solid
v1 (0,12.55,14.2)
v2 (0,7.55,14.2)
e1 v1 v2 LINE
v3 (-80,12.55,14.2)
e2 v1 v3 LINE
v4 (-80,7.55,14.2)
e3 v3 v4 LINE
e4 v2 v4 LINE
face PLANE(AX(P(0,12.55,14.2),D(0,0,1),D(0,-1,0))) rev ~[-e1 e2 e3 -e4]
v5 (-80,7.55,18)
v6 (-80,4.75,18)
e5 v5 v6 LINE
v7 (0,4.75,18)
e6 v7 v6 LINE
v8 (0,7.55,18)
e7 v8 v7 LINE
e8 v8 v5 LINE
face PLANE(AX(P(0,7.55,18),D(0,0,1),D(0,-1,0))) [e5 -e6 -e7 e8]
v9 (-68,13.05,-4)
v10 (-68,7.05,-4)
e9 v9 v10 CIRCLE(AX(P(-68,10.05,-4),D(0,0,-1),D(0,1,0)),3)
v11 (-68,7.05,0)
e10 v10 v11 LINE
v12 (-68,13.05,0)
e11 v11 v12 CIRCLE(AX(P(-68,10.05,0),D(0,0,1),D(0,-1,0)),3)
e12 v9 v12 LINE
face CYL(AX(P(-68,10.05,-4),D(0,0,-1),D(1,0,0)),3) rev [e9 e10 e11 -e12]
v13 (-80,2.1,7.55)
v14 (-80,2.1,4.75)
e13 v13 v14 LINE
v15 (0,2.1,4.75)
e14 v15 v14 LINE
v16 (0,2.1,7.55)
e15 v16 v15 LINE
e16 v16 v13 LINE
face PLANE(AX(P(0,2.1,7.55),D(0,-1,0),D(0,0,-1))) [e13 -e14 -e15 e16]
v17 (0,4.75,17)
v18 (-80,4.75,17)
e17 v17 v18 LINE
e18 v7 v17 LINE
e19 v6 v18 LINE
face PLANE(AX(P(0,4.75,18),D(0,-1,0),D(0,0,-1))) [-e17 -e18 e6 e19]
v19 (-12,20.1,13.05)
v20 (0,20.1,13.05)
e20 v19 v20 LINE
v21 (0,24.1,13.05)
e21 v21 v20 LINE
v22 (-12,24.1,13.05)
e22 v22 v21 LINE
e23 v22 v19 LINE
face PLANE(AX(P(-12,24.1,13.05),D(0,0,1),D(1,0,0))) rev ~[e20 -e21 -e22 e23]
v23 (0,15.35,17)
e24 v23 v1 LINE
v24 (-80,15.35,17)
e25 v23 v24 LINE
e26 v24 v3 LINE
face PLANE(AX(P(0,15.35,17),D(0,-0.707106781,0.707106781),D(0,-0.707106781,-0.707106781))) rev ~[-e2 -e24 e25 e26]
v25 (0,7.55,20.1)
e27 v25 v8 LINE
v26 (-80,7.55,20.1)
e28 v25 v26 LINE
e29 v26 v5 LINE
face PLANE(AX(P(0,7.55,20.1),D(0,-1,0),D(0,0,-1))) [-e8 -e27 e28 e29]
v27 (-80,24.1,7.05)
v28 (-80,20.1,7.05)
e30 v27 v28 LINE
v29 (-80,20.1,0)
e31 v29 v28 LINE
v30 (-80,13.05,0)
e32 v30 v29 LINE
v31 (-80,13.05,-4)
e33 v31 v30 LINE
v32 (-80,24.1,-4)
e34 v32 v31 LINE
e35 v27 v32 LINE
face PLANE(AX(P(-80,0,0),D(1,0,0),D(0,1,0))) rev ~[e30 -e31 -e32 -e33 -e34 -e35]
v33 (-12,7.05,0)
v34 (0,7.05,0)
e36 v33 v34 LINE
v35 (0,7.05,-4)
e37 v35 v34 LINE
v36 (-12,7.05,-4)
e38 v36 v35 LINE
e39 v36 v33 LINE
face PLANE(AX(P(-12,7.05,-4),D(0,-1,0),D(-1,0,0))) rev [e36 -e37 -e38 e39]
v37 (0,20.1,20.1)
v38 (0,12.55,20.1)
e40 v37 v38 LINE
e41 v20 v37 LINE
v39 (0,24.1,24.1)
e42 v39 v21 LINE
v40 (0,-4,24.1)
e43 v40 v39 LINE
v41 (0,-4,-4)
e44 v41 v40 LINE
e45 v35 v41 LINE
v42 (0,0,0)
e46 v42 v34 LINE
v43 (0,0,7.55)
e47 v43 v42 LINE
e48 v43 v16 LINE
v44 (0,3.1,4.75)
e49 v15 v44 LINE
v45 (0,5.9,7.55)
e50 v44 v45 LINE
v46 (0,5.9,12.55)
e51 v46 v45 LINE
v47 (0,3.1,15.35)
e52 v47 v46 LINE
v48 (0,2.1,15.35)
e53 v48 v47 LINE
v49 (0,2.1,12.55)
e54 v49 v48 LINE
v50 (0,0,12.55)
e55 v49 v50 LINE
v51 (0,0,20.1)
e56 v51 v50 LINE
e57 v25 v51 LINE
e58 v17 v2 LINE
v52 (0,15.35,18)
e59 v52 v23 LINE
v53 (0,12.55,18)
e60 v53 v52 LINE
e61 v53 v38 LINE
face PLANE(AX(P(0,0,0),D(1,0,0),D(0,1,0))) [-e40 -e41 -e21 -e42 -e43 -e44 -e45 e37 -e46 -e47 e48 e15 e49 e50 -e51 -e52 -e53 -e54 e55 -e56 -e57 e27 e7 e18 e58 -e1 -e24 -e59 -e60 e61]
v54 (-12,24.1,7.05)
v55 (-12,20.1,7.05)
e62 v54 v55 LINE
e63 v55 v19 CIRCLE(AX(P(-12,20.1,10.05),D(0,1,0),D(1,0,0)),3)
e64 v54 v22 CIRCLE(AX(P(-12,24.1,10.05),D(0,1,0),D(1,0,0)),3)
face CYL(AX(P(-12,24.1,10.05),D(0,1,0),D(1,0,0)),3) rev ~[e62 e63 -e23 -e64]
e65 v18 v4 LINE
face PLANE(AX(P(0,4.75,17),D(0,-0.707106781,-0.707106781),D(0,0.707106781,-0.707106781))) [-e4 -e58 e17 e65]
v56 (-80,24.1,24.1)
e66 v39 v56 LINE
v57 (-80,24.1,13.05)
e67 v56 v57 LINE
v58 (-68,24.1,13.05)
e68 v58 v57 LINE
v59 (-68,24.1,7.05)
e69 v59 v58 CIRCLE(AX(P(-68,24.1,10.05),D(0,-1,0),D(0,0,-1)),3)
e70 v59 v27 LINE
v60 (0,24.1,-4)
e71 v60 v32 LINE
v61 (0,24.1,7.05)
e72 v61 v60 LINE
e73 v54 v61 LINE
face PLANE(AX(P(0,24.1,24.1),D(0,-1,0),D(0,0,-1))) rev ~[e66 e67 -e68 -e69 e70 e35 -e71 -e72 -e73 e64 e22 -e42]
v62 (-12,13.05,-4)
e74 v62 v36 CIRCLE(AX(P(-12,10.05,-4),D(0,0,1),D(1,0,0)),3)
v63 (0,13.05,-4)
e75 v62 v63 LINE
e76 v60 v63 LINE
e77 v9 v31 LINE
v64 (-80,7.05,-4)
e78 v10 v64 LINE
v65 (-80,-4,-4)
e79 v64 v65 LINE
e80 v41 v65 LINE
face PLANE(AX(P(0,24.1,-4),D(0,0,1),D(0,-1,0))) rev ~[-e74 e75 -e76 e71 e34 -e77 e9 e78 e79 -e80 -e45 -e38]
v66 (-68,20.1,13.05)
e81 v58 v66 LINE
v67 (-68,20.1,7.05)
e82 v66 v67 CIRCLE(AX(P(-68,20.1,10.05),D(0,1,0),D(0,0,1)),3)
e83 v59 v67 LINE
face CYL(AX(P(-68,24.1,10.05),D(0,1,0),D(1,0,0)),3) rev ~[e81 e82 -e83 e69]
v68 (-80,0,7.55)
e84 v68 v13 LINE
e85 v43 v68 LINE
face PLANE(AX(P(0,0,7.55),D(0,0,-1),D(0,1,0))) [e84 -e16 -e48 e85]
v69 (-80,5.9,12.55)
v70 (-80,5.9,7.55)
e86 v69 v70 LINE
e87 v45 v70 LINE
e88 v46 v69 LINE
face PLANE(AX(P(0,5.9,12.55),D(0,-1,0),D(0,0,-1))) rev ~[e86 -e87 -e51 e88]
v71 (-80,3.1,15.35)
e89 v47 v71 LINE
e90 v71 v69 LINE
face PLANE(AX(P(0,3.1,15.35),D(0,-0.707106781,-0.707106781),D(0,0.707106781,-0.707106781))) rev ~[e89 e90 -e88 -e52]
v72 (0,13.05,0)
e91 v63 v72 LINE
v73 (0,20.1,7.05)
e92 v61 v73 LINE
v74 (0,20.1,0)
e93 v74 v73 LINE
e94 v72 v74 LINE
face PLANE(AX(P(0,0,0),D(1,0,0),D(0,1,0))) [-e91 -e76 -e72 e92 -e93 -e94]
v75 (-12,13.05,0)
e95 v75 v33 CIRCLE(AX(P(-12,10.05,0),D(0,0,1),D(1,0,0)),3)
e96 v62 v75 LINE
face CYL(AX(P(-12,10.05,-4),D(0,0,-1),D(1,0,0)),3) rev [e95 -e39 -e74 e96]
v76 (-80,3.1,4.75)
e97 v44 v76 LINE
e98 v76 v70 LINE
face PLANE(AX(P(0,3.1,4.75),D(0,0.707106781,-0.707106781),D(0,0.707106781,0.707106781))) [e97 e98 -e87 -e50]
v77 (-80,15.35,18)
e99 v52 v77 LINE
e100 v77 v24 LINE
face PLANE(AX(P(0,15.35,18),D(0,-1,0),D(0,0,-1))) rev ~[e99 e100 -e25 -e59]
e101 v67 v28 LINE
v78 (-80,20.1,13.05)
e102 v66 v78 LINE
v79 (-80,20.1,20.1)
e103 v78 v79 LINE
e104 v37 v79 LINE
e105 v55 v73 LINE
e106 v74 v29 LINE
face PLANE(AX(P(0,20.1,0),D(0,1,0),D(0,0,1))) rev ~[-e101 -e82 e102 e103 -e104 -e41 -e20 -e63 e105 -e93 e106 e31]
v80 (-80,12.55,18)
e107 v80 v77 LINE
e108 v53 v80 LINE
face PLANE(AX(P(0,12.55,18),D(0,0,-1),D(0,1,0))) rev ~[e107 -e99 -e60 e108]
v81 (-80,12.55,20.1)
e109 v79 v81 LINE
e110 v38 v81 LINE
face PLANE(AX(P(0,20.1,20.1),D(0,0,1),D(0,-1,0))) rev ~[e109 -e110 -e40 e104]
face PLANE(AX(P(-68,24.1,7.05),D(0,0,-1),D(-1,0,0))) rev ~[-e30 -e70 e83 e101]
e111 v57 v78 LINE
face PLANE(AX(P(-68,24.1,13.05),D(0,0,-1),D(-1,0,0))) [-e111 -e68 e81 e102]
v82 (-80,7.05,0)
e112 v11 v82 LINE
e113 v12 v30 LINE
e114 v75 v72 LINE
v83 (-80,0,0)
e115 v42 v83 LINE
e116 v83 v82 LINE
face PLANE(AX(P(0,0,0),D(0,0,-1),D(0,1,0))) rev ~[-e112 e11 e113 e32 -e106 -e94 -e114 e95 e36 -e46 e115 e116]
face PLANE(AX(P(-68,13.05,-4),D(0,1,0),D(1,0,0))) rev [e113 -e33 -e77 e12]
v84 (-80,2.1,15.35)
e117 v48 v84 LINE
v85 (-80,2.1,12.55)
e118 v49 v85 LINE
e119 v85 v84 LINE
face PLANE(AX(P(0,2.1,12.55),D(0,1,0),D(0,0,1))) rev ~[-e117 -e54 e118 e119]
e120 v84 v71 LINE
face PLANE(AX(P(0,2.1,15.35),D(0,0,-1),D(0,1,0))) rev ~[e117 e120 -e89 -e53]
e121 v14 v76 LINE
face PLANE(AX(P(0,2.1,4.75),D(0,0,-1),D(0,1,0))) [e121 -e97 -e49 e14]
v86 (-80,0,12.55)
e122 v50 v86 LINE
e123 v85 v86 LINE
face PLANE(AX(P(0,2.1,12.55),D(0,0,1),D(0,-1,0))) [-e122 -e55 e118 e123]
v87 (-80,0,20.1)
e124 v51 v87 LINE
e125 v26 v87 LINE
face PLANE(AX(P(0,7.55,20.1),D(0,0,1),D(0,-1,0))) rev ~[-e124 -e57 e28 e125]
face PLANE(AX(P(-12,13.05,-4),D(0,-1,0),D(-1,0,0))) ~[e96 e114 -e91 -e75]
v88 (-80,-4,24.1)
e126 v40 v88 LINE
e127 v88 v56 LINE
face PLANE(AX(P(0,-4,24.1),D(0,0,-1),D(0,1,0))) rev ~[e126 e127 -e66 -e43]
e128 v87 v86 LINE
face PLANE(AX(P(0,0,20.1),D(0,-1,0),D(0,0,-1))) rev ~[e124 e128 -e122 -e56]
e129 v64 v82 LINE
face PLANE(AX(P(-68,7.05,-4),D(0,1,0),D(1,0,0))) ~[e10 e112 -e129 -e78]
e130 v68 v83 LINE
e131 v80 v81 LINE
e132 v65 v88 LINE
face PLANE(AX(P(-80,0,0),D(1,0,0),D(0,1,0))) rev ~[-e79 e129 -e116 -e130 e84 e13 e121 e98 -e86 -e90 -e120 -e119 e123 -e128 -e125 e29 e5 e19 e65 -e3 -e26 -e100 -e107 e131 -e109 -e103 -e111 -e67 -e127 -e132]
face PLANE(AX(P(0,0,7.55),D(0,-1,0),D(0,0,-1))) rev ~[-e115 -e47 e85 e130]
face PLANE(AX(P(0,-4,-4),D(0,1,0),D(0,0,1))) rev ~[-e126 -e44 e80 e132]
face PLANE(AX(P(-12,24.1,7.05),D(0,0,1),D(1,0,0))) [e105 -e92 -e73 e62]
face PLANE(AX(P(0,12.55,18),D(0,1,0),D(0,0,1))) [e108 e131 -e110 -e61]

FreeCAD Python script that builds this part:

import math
import FreeCAD as App
import Part
import Sketcher
from FreeCAD import Vector

doc = App.newDocument("Part")
body = doc.addObject("PartDesign::Body", "Body")

# Sketch on YZ plane
sketch1 = body.newObject("Sketcher::SketchObject", "Sketch")
sketch1.AttachmentSupport = (doc.getObject("YZ_Plane"), [""])
sketch1.MapMode = "FlatFace"
sketch1.addGeometry(Part.LineSegment(Vector(24.1, 24.1, 0), Vector(-4, 24.1, 0)), False)
sketch1.addGeometry(Part.LineSegment(Vector(-4, 24.1, 0), Vector(-4, -4, 0)), False)
sketch1.addGeometry(Part.LineSegment(Vector(-4, -4, 0), Vector(24.1, -4, 0)), False)
sketch1.addGeometry(Part.LineSegment(Vector(24.1, -4, 0), Vector(24.1, 24.1, 0)), False)
sketch1.addGeometry(Part.LineSegment(Vector(20.1, 0, 0), Vector(0, 0, 0)), False)
sketch1.addGeometry(Part.LineSegment(Vector(0, 0, 0), Vector(0, 7.55, 0)), False)
sketch1.addGeometry(Part.LineSegment(Vector(0, 7.55, 0), Vector(2.1, 7.55, 0)), False)
sketch1.addGeometry(Part.LineSegment(Vector(2.1, 7.55, 0), Vector(2.1, 4.75, 0)), False)
sketch1.addGeometry(Part.LineSegment(Vector(2.1, 4.75, 0), Vector(3.1, 4.75, 0)), False)
sketch1.addGeometry(Part.LineSegment(Vector(3.1, 4.75, 0), Vector(5.9, 7.55, 0)), False)
sketch1.addGeometry(Part.LineSegment(Vector(5.9, 7.55, 0), Vector(5.9, 12.55, 0)), False)
sketch1.addGeometry(Part.LineSegment(Vector(5.9, 12.55, 0), Vector(3.1, 15.35, 0)), False)
sketch1.addGeometry(Part.LineSegment(Vector(3.1, 15.35, 0), Vector(2.1, 15.35, 0)), False)
sketch1.addGeometry(Part.LineSegment(Vector(2.1, 15.35, 0), Vector(2.1, 12.55, 0)), False)
sketch1.addGeometry(Part.LineSegment(Vector(2.1, 12.55, 0), Vector(0, 12.55, 0)), False)
sketch1.addGeometry(Part.LineSegment(Vector(0, 12.55, 0), Vector(0, 20.1, 0)), False)
sketch1.addGeometry(Part.LineSegment(Vector(0, 20.1, 0), Vector(7.55, 20.1, 0)), False)
sketch1.addGeometry(Part.LineSegment(Vector(7.55, 20.1, 0), Vector(7.55, 18, 0)), False)
sketch1.addGeometry(Part.LineSegment(Vector(7.55, 18, 0), Vector(4.75, 18, 0)), False)
sketch1.addGeometry(Part.LineSegment(Vector(4.75, 18, 0), Vector(4.75, 17, 0)), False)
sketch1.addGeometry(Part.LineSegment(Vector(4.75, 17, 0), Vector(7.55, 14.2, 0)), False)
sketch1.addGeometry(Part.LineSegment(Vector(7.55, 14.2, 0), Vector(12.55, 14.2, 0)), False)
sketch1.addGeometry(Part.LineSegment(Vector(12.55, 14.2, 0), Vector(15.35, 17, 0)), False)
sketch1.addGeometry(Part.LineSegment(Vector(15.35, 17, 0), Vector(15.35, 18, 0)), False)
sketch1.addGeometry(Part.LineSegment(Vector(15.35, 18, 0), Vector(12.55, 18, 0)), False)
sketch1.addGeometry(Part.LineSegment(Vector(12.55, 18, 0), Vector(12.55, 20.1, 0)), False)
sketch1.addGeometry(Part.LineSegment(Vector(12.55, 20.1, 0), Vector(20.1, 20.1, 0)), False)
sketch1.addGeometry(Part.LineSegment(Vector(20.1, 20.1, 0), Vector(20.1, 0, 0)), False)
sketch1.addConstraint(Sketcher.Constraint("Coincident", 0, 2, 1, 1))
sketch1.addConstraint(Sketcher.Constraint("Coincident", 1, 2, 2, 1))
sketch1.addConstraint(Sketcher.Constraint("Coincident", 2, 2, 3, 1))
sketch1.addConstraint(Sketcher.Constraint("Coincident", 3, 2, 0, 1))
sketch1.addConstraint(Sketcher.Constraint("Coincident", 4, 2, 5, 1))
sketch1.addConstraint(Sketcher.Constraint("Coincident", 5, 2, 6, 1))
sketch1.addConstraint(Sketcher.Constraint("Coincident", 6, 2, 7, 1))
sketch1.addConstraint(Sketcher.Constraint("Coincident", 7, 2, 8, 1))
sketch1.addConstraint(Sketcher.Constraint("Coincident", 8, 2, 9, 1))
sketch1.addConstraint(Sketcher.Constraint("Coincident", 9, 2, 10, 1))
sketch1.addConstraint(Sketcher.Constraint("Coincident", 10, 2, 11, 1))
sketch1.addConstraint(Sketcher.Constraint("Coincident", 11, 2, 12, 1))
sketch1.addConstraint(Sketcher.Constraint("Coincident", 12, 2, 13, 1))
sketch1.addConstraint(Sketcher.Constraint("Coincident", 13, 2, 14, 1))
sketch1.addConstraint(Sketcher.Constraint("Coincident", 14, 2, 15, 1))
sketch1.addConstraint(Sketcher.Constraint("Coincident", 15, 2, 16, 1))
sketch1.addConstraint(Sketcher.Constraint("Coincident", 16, 2, 17, 1))
sketch1.addConstraint(Sketcher.Constraint("Coincident", 17, 2, 18, 1))
sketch1.addConstraint(Sketcher.Constraint("Coincident", 18, 2, 19, 1))
sketch1.addConstraint(Sketcher.Constraint("Coincident", 19, 2, 20, 1))
sketch1.addConstraint(Sketcher.Constraint("Coincident", 20, 2, 21, 1))
sketch1.addConstraint(Sketcher.Constraint("Coincident", 21, 2, 22, 1))
sketch1.addConstraint(Sketcher.Constraint("Coincident", 22, 2, 23, 1))
sketch1.addConstraint(Sketcher.Constraint("Coincident", 23, 2, 24, 1))
sketch1.addConstraint(Sketcher.Constraint("Coincident", 24, 2, 25, 1))
sketch1.addConstraint(Sketcher.Constraint("Coincident", 25, 2, 26, 1))
sketch1.addConstraint(Sketcher.Constraint("Coincident", 26, 2, 27, 1))
sketch1.addConstraint(Sketcher.Constraint("Coincident", 27, 2, 4, 1))
sketch1.addConstraint(Sketcher.Constraint("Horizontal", 0))
sketch1.addConstraint(Sketcher.Constraint("Vertical", 1))
sketch1.addConstraint(Sketcher.Constraint("Horizontal", 2))
sketch1.addConstraint(Sketcher.Constraint("Vertical", 3))
sketch1.addConstraint(Sketcher.Constraint("Horizontal", 4))
sketch1.addConstraint(Sketcher.Constraint("Vertical", 5))
sketch1.addConstraint(Sketcher.Constraint("Horizontal", 6))
sketch1.addConstraint(Sketcher.Constraint("Vertical", 7))
sketch1.addConstraint(Sketcher.Constraint("Horizontal", 8))
sketch1.addConstraint(Sketcher.Constraint("Vertical", 10))
sketch1.addConstraint(Sketcher.Constraint("Horizontal", 12))
sketch1.addConstraint(Sketcher.Constraint("Vertical", 13))
sketch1.addConstraint(Sketcher.Constraint("Horizontal", 14))
sketch1.addConstraint(Sketcher.Constraint("Vertical", 15))
sketch1.addConstraint(Sketcher.Constraint("Horizontal", 16))
sketch1.addConstraint(Sketcher.Constraint("Vertical", 17))
sketch1.addConstraint(Sketcher.Constraint("Horizontal", 18))
sketch1.addConstraint(Sketcher.Constraint("Vertical", 19))
sketch1.addConstraint(Sketcher.Constraint("Horizontal", 21))
sketch1.addConstraint(Sketcher.Constraint("Vertical", 23))
sketch1.addConstraint(Sketcher.Constraint("Horizontal", 24))
sketch1.addConstraint(Sketcher.Constraint("Vertical", 25))
sketch1.addConstraint(Sketcher.Constraint("Horizontal", 26))
sketch1.addConstraint(Sketcher.Constraint("Vertical", 27))
sketch1.addConstraint(Sketcher.Constraint("Coincident", 4, 2, -1, 1))
sketch1.addConstraint(Sketcher.Constraint("PointOnObject", 14, 2, -2))
sketch1.addConstraint(Sketcher.Constraint("Perpendicular", 9, 11))
sketch1.addConstraint(Sketcher.Constraint("Parallel", 11, 20))
sketch1.addConstraint(Sketcher.Constraint("Perpendicular", 20, 22))
sketch1.addConstraint(Sketcher.Constraint("Horizontal", 6, 2, 9, 2))
sketch1.addConstraint(Sketcher.Constraint("Horizontal", 10, 2, 13, 2))
sketch1.addConstraint(Sketcher.Constraint("Horizontal", 19, 2, 22, 2))
sketch1.addConstraint(Sketcher.Constraint("Horizontal", 18, 2, 23, 2))
sketch1.addConstraint(Sketcher.Constraint("Horizontal", 16, 2, 25, 2))
sketch1.addConstraint(Sketcher.Constraint("Vertical", 8, 2, 11, 2))
sketch1.addConstraint(Sketcher.Constraint("Vertical", 7, 2, 12, 2))
sketch1.addConstraint(Sketcher.Constraint("Vertical", 17, 2, 20, 2))
sketch1.addConstraint(Sketcher.Constraint("Vertical", 21, 2, 24, 2))
sketch1.addConstraint(Sketcher.Constraint("Equal", 18, 24))
sketch1.addConstraint(Sketcher.Constraint("Equal", 16, 26))
sketch1.addConstraint(Sketcher.Constraint("Equal", 2, 1))
sketch1.addConstraint(Sketcher.Constraint("Equal", 26, 5))
sketch1.addConstraint(Sketcher.Constraint("Equal", 24, 7))
sketch1.addConstraint(Sketcher.Constraint("Equal", 21, 10))
sketch1.addConstraint(Sketcher.Constraint("Equal", 5, 15))
sketch1.addConstraint(Sketcher.Constraint("Equal", 14, 17))
sketch1.addConstraint(Sketcher.Constraint("Equal", 12, 19))
sketch1.addConstraint(Sketcher.Constraint("DistanceX", 8, 1, 8, 2, 1.0))
sketch1.addConstraint(Sketcher.Constraint("DistanceX", 21, 1, 21, 2, 5.0))
sketch1.addConstraint(Sketcher.Constraint("DistanceX", 4, 2, 4, 1, 20.1))
sketch1.addConstraint(Sketcher.Constraint("DistanceX", 6, 1, 6, 2, 2.1))
sketch1.addConstraint(Sketcher.Constraint("DistanceX", 18, 2, 18, 1, 2.8))
sketch1.addConstraint(Sketcher.Constraint("DistanceX", 0, 2, -1, 1, 4.0))
sketch1.addConstraint(Sketcher.Constraint("DistanceY", 1, 2, -1, 1, 4.0))
sketch1.addConstraint(Sketcher.Constraint("DistanceY", 15, 2, 0, 2, 4.0))
pad1 = body.newObject("PartDesign::Pad", "Pad")
pad1.Profile = sketch1
pad1.Length = 80
pad1.Reversed = True

# Sketch on XZ plane
sketch2 = body.newObject("Sketcher::SketchObject", "Sketch001")
sketch2.AttachmentSupport = (doc.getObject("XZ_Plane"), [""])
sketch2.MapMode = "FlatFace"
sketch2.AttachmentOffset = App.Placement(Vector(0, 0, -24.1), App.Rotation())
sketch2.addGeometry(Part.LineSegment(Vector(0, 7.05, 0), Vector(-12, 7.05, 0)), False)
sketch2.addGeometry(Part.ArcOfCircle(Part.Circle(Vector(-12, 10.05, 0), Vector(0, 0, 1), 3), math.radians(90), math.radians(270)), False)
sketch2.addGeometry(Part.LineSegment(Vector(-12, 13.05, 0), Vector(0, 13.05, 0)), False)
sketch2.addGeometry(Part.LineSegment(Vector(0, 13.05, 0), Vector(0, 7.05, 0)), False)
sketch2.addGeometry(Part.LineSegment(Vector(-68, 7.05, 0), Vector(-80, 7.05, 0)), False)
sketch2.addGeometry(Part.LineSegment(Vector(-80, 7.05, 0), Vector(-80, 13.05, 0)), False)
sketch2.addGeometry(Part.LineSegment(Vector(-80, 13.05, 0), Vector(-68, 13.05, 0)), False)
sketch2.addGeometry(Part.ArcOfCircle(Part.Circle(Vector(-68, 10.05, 0), Vector(0, 0, 1), 3), math.radians(-90), math.radians(90)), False)
sketch2.addConstraint(Sketcher.Constraint("Tangent", 0, 2, 1, 2))
sketch2.addConstraint(Sketcher.Constraint("Tangent", 1, 1, 2, 1))
sketch2.addConstraint(Sketcher.Constraint("Coincident", 2, 2, 3, 1))
sketch2.addConstraint(Sketcher.Constraint("Coincident", 3, 2, 0, 1))
sketch2.addConstraint(Sketcher.Constraint("Coincident", 4, 2, 5, 1))
sketch2.addConstraint(Sketcher.Constraint("Coincident", 5, 2, 6, 1))
sketch2.addConstraint(Sketcher.Constraint("Tangent", 6, 2, 7, 2))
sketch2.addConstraint(Sketcher.Constraint("Tangent", 7, 1, 4, 1))
sketch2.addConstraint(Sketcher.Constraint("Horizontal", 0))
sketch2.addConstraint(Sketcher.Constraint("Horizontal", 2))
sketch2.addConstraint(Sketcher.Constraint("Vertical", 3))
sketch2.addConstraint(Sketcher.Constraint("Horizontal", 4))
sketch2.addConstraint(Sketcher.Constraint("Vertical", 5))
sketch2.addConstraint(Sketcher.Constraint("Horizontal", 6))
sketch2.addConstraint(Sketcher.Constraint("Equal", 1, 7))
sketch2.addConstraint(Sketcher.Constraint("PointOnObject", 2, 2, -2))
sketch2.addConstraint(Sketcher.Constraint("Horizontal", 1, 3, 7, 3))
sketch2.addConstraint(Sketcher.Constraint("Equal", 2, 4))
sketch2.addConstraint(Sketcher.Constraint("Radius", 1, 3.0))
sketch2.addConstraint(Sketcher.Constraint("DistanceX", 0, 2, 0, 1, 12.0))
sketch2.addConstraint(Sketcher.Constraint("DistanceX", 7, 3, -1, 1, 68.0))
sketch2.addConstraint(Sketcher.Constraint("DistanceY", -1, 1, 1, 3, 10.05))
pocket1 = body.newObject("PartDesign::Pocket", "Pocket")
pocket1.Profile = sketch2
pocket1.Length = 4
pocket1.Reversed = True
doc.recompute()

datumplane = body.newObject("PartDesign::Plane", "DatumPlane")
datumplane.Placement = App.Placement(Vector(0, 10.05, 10.05), App.Rotation(Vector(0, -0.707106781, 0.707106781), Vector(-1, 0, 0), Vector(0, -0.707106781, -0.707106781), "ZXY"))
mirrored = body.newObject("PartDesign::Mirrored", "Mirrored")
mirrored.Originals = [pocket1]
mirrored.MirrorPlane = (datumplane, [""])
body.Tip = mirrored

doc.recompute()
